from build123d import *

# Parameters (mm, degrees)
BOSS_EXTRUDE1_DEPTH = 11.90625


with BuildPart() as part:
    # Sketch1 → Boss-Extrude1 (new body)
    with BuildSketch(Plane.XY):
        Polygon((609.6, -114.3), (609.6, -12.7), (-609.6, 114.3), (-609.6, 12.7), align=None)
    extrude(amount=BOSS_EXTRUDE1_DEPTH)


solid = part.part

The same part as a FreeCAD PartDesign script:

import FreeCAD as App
import Part
import Sketcher

V = App.Vector
Q = App.Units.Quantity

doc = App.newDocument("Part")
params = doc.addObject("Spreadsheet::Sheet", "Params")
for row, (alias, value) in enumerate([
    ("sketch1_height", "4 in"),
    ("pad1_length", "0.46875 in"),
], start=1):
    params.set(f"A{row}", alias)
    params.set(f"B{row}", "=" + value)
    params.setAlias(f"B{row}", alias)

body = doc.addObject("PartDesign::Body", "Body")

# Sketch on XY plane
sketch1 = doc.addObject("Sketcher::SketchObject", "Sketch")
body.addObject(sketch1)
sketch1.AttachmentSupport = (doc.XY_Plane, [""])
sketch1.MapMode = "FlatFace"
sketch1.addGeometry([
    Part.LineSegment(V(610, -114, 0), V(610, -13, 0)),
    Part.LineSegment(V(610, -13, 0), V(-610, 114, 0)),
    Part.LineSegment(V(-610, 114, 0), V(-610, 13, 0)),
    Part.LineSegment(V(-610, 13, 0), V(610, -114, 0)),
], False)
sketch1.addConstraint([
    Sketcher.Constraint("Coincident", 0, 2, 1, 1),
    Sketcher.Constraint("Coincident", 1, 2, 2, 1),
    Sketcher.Constraint("Coincident", 2, 2, 3, 1),
    Sketcher.Constraint("Coincident", 3, 2, 0, 1),
    Sketcher.Constraint("Vertical", 0),
    Sketcher.Constraint("Vertical", 2),
    Sketcher.Constraint("Symmetric", 0, 2, 2, 2, -1, 1),
    Sketcher.Constraint("Parallel", 1, 3),
    Sketcher.Constraint("DistanceY", 0, 1, 0, 2, Q("4 in")),
    Sketcher.Constraint("DistanceX", -1, 1, 0, 2, Q("24 in")),
    Sketcher.Constraint("DistanceY", 0, 2, 1, 2, Q("5 in")),
])
sketch1.setExpression("Constraints[8]", "Params.sketch1_height")
pad1 = doc.addObject("PartDesign::Pad", "Pad")
body.addObject(pad1)
pad1.Profile = sketch1
pad1.setExpression("Length", "Params.pad1_length")

doc.recompute()
